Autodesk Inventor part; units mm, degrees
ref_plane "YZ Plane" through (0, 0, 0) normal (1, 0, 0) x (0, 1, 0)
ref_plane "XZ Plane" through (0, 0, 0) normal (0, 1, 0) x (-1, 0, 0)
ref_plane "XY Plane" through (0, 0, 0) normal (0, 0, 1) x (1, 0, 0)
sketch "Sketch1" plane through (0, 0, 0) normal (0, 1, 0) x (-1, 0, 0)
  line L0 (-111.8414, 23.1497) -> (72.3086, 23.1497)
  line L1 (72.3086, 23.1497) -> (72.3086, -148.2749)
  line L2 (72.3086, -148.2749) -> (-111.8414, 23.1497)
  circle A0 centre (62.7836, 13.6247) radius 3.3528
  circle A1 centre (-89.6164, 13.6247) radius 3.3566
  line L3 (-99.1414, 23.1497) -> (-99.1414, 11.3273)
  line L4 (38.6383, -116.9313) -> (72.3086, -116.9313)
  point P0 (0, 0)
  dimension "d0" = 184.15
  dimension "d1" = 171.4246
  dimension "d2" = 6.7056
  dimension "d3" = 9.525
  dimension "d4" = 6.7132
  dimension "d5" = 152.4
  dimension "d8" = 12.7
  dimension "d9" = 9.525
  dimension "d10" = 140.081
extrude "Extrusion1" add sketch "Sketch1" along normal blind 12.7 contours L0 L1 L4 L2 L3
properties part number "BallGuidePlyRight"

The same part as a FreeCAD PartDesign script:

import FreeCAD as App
import Part
import Sketcher
Q = App.Units.Quantity


def add_polygon(sketch, points):
    """Adds a closed chain of lines whose ends are joined by coincident constraints."""
    first, n = sketch.GeometryCount, len(points)
    for a, b in zip(points, points[1:] + points[:1]):
        sketch.addGeometry(Part.LineSegment(App.Vector(*a, 0), App.Vector(*b, 0)), False)
    for i in range(n):
        sketch.addConstraint(Sketcher.Constraint("Coincident", first + i, 2, first + (i + 1) % n, 1))

doc = App.newDocument("Part")
body = doc.addObject("PartDesign::Body", "Body")

# Sketch on XZ plane
sketch1 = body.newObject("Sketcher::SketchObject", "Sketch")
sketch1.AttachmentSupport = (doc.getObject("XZ_Plane"), [""])
sketch1.MapMode = "FlatFace"
add_polygon(sketch1, [(-72.3, 23.1), (99.1, 23.1), (99.1, 11.3), (-38.6, -116.9), (-72.3, -116.9)])  # lines 0-4
sketch1.addGeometry(Part.Circle(App.Vector(89.6, 13.6, 0), App.Vector(0, 0, 1), 3.4), False)  # 5
sketch1.addGeometry(Part.Circle(App.Vector(-62.8, 13.6, 0), App.Vector(0, 0, 1), 3.4), False)  # 6
sketch1.addConstraint([
    Sketcher.Constraint("Horizontal", 0),
    Sketcher.Constraint("Vertical", 1),
    Sketcher.Constraint("Horizontal", 3),
    Sketcher.Constraint("Vertical", 4),
    Sketcher.Constraint("Horizontal", 5, 3, 6, 3),
    Sketcher.Constraint("Diameter", 6, Q("0.264 in")),
    Sketcher.Constraint("DistanceX", 6, 3, 5, 3, Q("6 in")),
    Sketcher.Constraint("Diameter", 5, Q("0.2643 in")),
    Sketcher.Constraint("DistanceY", 4, 1, 4, 2, Q("5.515 in")),
    Sketcher.Constraint("DistanceX", 5, 3, 0, 2, Q("0.375 in")),
    Sketcher.Constraint("DistanceY", 5, 3, 0, 2, Q("0.375 in")),
    Sketcher.Constraint("DistanceX", 3, 2, 6, 3, Q("0.375 in")),
    Sketcher.Constraint("Angle", 2, Q("-137.0496 deg")),
    Sketcher.Constraint("DistanceX", 3, 2, 3, 1, Q("1.3256 in")),
    Sketcher.Constraint("DistanceX", -1, 1, 5, 3, Q("3.5282 in")),
    Sketcher.Constraint("DistanceY", -1, 1, 5, 3, Q("0.5364 in")),
])
pad1 = body.newObject("PartDesign::Pad", "Pad")
pad1.Profile = sketch1
pad1.Length = Q("0.5 in")
pad1.Reversed = True

doc.recompute()
